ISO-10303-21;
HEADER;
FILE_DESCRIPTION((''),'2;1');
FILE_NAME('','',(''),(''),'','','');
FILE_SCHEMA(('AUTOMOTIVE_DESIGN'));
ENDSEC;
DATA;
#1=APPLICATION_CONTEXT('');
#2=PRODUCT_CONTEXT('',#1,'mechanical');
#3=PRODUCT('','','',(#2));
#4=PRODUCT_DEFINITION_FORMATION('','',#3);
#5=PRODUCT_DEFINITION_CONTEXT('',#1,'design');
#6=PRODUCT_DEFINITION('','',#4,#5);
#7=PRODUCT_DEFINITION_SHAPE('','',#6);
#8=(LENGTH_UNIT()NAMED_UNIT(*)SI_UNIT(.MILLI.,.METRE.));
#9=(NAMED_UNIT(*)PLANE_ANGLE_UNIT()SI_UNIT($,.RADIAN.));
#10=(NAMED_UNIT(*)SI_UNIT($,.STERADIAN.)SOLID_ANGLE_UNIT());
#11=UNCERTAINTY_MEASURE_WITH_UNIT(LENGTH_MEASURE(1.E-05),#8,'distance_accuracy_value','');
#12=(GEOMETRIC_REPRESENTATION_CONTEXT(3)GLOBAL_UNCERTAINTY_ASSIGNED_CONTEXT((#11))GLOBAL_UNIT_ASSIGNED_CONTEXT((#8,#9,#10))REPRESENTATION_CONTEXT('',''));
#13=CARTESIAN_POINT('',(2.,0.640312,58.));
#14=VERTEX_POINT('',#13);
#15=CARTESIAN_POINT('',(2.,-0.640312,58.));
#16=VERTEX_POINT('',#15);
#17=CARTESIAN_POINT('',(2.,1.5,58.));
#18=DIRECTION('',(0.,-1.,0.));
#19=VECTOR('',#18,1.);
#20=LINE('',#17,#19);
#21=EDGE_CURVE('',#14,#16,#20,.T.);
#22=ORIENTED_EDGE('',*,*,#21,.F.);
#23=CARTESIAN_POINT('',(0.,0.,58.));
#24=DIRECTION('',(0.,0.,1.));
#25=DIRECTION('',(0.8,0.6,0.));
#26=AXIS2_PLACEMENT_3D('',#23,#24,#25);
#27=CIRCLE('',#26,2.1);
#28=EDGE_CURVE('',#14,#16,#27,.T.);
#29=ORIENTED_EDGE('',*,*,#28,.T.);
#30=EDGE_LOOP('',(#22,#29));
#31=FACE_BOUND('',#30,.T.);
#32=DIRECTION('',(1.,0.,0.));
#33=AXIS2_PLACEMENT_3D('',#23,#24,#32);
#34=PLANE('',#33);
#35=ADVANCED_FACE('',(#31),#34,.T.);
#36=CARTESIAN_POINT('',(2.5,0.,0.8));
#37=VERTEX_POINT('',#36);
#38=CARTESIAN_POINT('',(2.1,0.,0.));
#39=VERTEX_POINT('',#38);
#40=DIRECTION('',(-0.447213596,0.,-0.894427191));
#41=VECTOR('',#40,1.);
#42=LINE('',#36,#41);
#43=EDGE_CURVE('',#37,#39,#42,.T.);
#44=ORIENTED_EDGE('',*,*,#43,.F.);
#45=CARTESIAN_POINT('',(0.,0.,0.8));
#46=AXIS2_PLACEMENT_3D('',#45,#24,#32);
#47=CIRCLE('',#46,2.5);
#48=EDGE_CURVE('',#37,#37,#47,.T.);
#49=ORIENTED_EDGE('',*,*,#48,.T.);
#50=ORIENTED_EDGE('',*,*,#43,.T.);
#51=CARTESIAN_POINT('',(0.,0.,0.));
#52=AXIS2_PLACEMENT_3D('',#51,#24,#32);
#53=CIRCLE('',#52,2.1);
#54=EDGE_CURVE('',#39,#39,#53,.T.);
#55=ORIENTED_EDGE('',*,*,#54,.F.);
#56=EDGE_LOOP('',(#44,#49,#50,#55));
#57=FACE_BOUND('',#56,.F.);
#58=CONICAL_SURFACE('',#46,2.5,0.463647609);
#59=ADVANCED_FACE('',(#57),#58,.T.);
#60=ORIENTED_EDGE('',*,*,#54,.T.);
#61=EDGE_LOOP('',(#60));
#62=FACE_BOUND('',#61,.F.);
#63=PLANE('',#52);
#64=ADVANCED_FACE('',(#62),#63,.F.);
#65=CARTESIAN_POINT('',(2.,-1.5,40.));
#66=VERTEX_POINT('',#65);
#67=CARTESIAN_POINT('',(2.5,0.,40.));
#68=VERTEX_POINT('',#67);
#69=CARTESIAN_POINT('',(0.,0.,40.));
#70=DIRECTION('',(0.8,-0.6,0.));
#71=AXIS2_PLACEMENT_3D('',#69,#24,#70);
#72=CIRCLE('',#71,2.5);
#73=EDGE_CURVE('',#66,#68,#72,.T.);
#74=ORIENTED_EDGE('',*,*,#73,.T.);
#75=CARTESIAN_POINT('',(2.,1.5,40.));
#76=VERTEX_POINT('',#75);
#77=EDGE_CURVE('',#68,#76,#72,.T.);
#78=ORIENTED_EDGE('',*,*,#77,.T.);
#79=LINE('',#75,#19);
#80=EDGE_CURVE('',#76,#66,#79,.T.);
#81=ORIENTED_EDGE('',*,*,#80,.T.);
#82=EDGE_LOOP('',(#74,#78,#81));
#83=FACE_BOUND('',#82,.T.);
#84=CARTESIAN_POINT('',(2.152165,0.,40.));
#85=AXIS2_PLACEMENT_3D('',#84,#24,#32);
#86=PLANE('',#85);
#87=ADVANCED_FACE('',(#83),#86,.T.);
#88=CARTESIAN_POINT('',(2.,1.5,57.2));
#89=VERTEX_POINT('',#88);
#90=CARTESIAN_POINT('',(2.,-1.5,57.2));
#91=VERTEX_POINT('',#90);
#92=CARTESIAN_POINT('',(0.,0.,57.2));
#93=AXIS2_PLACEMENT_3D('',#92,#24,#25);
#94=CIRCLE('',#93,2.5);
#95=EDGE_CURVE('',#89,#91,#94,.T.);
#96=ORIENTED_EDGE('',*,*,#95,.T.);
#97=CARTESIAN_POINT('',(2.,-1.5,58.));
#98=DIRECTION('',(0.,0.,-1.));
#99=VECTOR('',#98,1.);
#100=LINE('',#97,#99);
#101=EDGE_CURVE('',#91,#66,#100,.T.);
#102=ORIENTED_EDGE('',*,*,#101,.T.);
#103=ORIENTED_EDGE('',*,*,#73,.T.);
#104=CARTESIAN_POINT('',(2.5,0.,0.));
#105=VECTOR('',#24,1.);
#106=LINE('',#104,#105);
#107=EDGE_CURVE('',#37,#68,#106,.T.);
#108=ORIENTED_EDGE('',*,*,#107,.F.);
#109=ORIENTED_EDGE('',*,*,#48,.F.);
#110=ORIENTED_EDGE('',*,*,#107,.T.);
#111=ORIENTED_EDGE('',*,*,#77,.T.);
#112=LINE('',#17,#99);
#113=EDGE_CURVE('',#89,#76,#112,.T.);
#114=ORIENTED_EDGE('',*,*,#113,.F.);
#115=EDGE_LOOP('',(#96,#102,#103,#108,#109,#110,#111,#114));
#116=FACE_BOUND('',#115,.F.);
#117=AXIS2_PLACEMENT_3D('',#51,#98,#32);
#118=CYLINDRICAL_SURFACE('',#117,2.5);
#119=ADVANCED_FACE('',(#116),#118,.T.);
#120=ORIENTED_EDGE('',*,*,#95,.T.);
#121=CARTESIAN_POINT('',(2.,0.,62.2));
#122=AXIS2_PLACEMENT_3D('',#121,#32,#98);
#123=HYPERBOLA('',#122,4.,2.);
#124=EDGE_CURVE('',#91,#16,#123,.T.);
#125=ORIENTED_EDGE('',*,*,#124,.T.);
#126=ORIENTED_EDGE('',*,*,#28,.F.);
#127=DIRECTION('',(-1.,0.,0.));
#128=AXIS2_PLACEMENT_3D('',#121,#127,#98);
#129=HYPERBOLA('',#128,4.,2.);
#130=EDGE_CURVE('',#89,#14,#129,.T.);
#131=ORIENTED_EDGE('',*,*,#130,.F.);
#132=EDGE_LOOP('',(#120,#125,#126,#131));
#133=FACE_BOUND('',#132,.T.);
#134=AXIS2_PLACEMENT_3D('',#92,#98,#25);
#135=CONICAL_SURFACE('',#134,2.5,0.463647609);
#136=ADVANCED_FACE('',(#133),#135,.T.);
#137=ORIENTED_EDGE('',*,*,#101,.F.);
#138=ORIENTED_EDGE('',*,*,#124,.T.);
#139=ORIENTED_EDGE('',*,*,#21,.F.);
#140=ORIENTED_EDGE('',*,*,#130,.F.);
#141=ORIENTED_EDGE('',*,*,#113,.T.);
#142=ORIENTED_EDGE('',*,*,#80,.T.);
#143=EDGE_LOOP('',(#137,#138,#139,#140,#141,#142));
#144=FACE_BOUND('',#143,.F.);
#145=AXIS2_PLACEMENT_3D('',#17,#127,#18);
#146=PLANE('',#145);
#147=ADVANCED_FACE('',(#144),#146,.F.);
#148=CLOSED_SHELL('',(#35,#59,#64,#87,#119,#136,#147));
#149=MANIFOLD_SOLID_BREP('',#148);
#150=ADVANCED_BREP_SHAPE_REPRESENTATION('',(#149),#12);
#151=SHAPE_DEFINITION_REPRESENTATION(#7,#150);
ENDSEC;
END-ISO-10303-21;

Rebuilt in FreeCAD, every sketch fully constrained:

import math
import FreeCAD as App
import Part
import Sketcher


def edges_at(feature, points):
    """Names of the edges that pass closest to the given points."""
    edges = feature.Shape.Edges
    near = lambda p: min(range(len(edges)), key=lambda i: edges[i].distToShape(Part.Vertex(*p))[0])
    return sorted({f"Edge{near(p) + 1}" for p in points})

doc = App.newDocument("Part")
body = doc.addObject("PartDesign::Body", "Body")

# Sketch on XY plane
sketch1 = doc.addObject("Sketcher::SketchObject", "Sketch")
body.addObject(sketch1)
sketch1.AttachmentSupport = (doc.XY_Plane, [""])
sketch1.MapMode = "FlatFace"
sketch1.addGeometry(Part.Circle(App.Vector(0, 0, 0), App.Vector(0, 0, 1), 2.5), False)
sketch1.addConstraint([
    Sketcher.Constraint("Coincident", 0, 3, -1, 1),
    Sketcher.Constraint("Diameter", 0, 5.0),
])
pad1 = doc.addObject("PartDesign::Pad", "Pad")
body.addObject(pad1)
pad1.Profile = sketch1
pad1.Length = 58

# Sketch on XY plane
sketch2 = doc.addObject("Sketcher::SketchObject", "Sketch001")
body.addObject(sketch2)
sketch2.AttachmentSupport = (doc.XY_Plane, [""])
sketch2.MapMode = "FlatFace"
sketch2.AttachmentOffset = App.Placement(App.Vector(0, 0, 58), App.Rotation())
sketch2.addGeometry([
    Part.ArcOfCircle(Part.Circle(App.Vector(0, 0, 0), App.Vector(0, 0, 1), 2.5), math.radians(-37), math.radians(37)),
    Part.LineSegment(App.Vector(2, 1.5, 0), App.Vector(2, -1.5, 0)),
], False)
sketch2.addConstraint([
    Sketcher.Constraint("Coincident", 0, 1, 1, 2),
    Sketcher.Constraint("Coincident", 1, 1, 0, 2),
    Sketcher.Constraint("Vertical", 1),
    Sketcher.Constraint("Coincident", 0, 3, -1, 1),
    Sketcher.Constraint("Radius", 0, 2.5),
    Sketcher.Constraint("DistanceY", 1, 2, 1, 1, 3.0),
])
pocket1 = doc.addObject("PartDesign::Pocket", "Pocket")
body.addObject(pocket1)
pocket1.Profile = sketch2
pocket1.Length = 18
doc.recompute()

chamfer = doc.addObject("PartDesign::Chamfer", "Chamfer")
body.addObject(chamfer)
chamfer.Base = (pocket1, edges_at(pocket1, [(-2.5, 0, 58), (-2.5, 0, 0)]))
chamfer.ChamferType = "Two distances"
chamfer.Size = 0.8
chamfer.Size2 = 0.4

doc.recompute()
